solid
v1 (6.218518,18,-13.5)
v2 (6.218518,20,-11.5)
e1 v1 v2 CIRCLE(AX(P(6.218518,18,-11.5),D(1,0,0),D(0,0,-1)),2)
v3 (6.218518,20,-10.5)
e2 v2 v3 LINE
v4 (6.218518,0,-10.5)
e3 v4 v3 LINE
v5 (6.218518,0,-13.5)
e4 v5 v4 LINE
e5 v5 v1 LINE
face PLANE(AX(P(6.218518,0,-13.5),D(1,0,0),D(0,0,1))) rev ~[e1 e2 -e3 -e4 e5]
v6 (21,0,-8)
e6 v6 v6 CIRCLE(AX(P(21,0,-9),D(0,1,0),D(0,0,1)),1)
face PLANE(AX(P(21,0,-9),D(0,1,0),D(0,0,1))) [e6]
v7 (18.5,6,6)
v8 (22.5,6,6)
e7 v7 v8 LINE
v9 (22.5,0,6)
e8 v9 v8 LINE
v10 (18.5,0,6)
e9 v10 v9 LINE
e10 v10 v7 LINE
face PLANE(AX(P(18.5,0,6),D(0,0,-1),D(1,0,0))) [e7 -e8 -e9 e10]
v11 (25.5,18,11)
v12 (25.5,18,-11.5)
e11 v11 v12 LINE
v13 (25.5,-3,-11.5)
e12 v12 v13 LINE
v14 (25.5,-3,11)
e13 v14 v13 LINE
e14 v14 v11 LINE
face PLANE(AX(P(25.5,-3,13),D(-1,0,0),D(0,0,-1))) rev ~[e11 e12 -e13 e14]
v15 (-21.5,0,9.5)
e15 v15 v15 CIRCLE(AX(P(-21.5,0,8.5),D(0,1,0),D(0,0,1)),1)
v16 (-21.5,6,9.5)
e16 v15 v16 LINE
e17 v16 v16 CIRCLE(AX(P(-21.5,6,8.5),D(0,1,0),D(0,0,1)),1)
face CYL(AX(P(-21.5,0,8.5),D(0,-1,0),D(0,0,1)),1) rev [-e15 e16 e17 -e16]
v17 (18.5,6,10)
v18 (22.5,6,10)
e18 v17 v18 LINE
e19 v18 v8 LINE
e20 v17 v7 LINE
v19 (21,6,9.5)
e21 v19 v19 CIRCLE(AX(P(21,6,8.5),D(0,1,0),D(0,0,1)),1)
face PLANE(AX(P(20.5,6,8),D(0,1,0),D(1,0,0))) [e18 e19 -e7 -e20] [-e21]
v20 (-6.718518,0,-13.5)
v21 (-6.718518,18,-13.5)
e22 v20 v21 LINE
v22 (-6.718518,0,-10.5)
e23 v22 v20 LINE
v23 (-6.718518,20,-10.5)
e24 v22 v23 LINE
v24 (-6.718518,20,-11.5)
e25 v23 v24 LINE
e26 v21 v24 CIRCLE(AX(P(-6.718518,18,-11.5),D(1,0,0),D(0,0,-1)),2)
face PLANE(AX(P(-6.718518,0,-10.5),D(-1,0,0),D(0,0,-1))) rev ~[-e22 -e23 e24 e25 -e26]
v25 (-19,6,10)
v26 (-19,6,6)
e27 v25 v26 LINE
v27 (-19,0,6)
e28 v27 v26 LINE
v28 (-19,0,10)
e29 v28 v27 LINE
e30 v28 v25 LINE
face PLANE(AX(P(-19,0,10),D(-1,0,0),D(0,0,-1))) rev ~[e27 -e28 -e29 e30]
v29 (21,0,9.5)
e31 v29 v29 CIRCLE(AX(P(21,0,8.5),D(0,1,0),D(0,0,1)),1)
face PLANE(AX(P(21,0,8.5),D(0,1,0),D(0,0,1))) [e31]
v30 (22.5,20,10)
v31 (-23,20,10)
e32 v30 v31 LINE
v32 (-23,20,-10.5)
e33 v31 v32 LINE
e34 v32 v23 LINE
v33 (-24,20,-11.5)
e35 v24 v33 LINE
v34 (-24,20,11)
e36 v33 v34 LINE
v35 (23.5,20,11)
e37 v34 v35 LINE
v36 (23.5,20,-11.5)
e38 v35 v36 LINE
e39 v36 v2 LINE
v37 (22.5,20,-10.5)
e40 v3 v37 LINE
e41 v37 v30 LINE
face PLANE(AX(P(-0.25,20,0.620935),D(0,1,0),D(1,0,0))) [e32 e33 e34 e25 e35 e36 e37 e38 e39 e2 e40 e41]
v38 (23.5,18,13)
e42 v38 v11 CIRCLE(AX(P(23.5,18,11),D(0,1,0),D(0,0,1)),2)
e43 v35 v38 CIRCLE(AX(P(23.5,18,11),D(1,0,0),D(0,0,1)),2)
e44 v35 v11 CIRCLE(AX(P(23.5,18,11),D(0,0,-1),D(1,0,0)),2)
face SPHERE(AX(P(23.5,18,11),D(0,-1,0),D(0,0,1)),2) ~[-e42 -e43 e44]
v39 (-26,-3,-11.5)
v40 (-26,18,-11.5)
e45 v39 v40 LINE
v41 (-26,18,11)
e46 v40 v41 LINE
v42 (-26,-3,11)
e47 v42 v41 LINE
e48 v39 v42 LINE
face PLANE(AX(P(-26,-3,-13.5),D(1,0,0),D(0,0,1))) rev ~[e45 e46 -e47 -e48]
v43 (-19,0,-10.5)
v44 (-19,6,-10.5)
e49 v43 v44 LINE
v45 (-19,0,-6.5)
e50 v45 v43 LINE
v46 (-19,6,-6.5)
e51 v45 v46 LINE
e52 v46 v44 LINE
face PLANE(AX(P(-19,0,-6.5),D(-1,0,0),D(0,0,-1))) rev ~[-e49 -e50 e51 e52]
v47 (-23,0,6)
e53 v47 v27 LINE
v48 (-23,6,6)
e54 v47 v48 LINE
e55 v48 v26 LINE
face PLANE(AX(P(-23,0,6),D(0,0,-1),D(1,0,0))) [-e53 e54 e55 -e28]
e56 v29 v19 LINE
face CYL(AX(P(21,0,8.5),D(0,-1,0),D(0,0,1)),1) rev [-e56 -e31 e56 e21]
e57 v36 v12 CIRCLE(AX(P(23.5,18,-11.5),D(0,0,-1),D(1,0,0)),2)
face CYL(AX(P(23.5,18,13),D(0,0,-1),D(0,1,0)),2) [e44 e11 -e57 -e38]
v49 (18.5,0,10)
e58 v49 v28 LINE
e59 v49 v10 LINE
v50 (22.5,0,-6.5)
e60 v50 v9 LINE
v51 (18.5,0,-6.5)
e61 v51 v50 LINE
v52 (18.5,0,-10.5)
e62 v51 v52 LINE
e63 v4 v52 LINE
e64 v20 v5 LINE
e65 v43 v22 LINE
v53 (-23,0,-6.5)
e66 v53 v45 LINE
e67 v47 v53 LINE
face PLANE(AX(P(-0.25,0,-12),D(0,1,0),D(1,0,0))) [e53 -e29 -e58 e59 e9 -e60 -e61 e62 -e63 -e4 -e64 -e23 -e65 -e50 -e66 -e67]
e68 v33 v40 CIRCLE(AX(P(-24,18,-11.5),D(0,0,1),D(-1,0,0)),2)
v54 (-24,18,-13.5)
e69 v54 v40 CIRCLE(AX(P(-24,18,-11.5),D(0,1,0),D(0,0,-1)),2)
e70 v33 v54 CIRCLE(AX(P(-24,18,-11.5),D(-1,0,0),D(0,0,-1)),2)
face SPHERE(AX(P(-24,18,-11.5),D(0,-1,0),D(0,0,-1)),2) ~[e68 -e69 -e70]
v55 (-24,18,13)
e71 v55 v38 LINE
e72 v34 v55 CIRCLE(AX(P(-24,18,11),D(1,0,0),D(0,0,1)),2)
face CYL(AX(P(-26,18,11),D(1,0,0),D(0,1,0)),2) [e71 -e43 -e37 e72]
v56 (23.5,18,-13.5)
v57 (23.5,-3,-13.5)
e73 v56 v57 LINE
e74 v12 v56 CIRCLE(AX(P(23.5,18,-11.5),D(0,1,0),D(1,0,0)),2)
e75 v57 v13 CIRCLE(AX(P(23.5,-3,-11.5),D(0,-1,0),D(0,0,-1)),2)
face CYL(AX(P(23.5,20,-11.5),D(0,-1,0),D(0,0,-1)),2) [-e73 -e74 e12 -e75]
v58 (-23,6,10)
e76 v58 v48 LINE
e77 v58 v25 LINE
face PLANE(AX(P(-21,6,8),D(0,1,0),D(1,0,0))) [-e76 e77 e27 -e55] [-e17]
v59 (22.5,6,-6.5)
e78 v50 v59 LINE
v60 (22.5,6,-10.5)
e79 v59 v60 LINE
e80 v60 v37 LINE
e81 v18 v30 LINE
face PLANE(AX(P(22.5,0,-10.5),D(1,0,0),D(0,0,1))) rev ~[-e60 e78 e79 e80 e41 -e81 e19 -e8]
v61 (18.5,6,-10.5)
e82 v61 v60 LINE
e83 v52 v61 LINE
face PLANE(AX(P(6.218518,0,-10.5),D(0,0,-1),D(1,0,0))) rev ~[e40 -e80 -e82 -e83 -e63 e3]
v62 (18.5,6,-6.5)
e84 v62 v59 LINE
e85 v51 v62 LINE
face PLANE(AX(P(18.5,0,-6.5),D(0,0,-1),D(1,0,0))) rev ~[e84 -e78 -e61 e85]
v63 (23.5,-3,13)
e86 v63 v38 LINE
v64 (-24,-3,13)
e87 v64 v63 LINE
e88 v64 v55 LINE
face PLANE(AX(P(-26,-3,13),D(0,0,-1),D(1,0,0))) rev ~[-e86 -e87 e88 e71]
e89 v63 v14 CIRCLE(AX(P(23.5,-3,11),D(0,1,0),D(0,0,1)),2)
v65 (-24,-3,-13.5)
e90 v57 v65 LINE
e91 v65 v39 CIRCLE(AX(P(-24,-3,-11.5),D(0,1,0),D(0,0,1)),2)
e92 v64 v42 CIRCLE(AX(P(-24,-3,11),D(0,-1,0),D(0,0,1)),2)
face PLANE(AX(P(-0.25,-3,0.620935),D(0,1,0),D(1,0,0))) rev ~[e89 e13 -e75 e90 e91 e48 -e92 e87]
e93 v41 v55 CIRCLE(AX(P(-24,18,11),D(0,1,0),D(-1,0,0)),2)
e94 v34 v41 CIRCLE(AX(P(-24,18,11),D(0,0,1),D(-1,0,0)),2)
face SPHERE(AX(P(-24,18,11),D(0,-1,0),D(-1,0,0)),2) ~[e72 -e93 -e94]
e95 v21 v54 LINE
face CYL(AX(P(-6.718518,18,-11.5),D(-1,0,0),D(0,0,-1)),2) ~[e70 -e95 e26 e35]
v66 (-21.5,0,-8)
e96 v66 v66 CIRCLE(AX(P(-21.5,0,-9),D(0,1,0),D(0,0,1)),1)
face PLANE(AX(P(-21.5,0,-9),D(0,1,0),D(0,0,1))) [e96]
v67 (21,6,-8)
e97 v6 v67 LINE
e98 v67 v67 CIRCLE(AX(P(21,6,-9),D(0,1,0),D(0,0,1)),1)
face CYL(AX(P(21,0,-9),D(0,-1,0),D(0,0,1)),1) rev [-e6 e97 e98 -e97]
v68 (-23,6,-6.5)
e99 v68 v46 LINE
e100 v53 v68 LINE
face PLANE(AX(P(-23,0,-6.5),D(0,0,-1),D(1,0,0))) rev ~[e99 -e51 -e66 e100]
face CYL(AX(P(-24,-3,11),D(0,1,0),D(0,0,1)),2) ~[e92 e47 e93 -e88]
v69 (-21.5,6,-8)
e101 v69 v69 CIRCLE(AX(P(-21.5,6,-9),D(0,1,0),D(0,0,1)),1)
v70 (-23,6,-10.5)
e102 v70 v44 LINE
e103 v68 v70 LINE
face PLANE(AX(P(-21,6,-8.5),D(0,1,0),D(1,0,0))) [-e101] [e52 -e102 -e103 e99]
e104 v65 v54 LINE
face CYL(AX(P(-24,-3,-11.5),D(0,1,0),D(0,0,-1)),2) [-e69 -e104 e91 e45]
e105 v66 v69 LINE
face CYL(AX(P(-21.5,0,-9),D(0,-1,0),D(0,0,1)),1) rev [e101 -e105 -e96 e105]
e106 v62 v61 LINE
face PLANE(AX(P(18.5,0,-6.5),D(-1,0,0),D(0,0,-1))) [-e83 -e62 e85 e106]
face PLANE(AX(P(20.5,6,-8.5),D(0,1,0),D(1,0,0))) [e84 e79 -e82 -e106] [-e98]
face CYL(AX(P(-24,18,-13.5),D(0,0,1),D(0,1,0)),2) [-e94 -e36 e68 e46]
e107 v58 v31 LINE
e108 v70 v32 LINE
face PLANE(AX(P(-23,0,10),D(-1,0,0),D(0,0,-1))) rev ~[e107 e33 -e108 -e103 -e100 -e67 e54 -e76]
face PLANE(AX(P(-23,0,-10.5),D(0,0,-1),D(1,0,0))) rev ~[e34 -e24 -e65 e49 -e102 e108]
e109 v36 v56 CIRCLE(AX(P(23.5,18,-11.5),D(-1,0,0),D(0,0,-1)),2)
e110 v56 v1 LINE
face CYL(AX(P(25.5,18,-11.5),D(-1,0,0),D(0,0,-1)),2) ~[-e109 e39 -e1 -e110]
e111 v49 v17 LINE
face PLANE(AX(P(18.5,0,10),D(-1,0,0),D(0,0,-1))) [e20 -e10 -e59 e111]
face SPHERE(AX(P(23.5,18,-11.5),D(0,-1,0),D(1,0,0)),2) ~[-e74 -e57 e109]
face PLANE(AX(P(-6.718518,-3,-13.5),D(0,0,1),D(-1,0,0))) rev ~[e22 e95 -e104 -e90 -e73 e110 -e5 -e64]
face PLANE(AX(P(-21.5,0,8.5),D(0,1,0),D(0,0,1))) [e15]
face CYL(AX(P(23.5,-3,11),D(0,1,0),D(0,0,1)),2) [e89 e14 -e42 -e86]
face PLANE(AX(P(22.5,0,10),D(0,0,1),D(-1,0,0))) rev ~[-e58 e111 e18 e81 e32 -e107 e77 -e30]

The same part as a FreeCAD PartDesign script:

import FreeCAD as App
import Part
import Sketcher
from FreeCAD import Vector
Q = App.Units.Quantity


def edges_at(feature, points):
    """Names of the edges that pass closest to the given points."""
    edges = feature.Shape.Edges
    near = lambda p: min(range(len(edges)), key=lambda i: edges[i].distToShape(Part.Vertex(*p))[0])
    return sorted({f"Edge{near(p) + 1}" for p in points})

doc = App.newDocument("Part")
body = doc.addObject("PartDesign::Body", "Body")

# Sketch on XZ plane
sketch1 = body.newObject("Sketcher::SketchObject", "Sketch")
sketch1.AttachmentSupport = (doc.getObject("XZ_Plane"), [""])
sketch1.MapMode = "FlatFace"
sketch1.addGeometry(Part.LineSegment(Vector(-23, -10.5, 0), Vector(-6.7, -10.5, 0)), False)
sketch1.addGeometry(Part.LineSegment(Vector(-6.7, -10.5, 0), Vector(-6.7, -13.5, 0)), False)
sketch1.addGeometry(Part.LineSegment(Vector(-6.7, -13.5, 0), Vector(-26, -13.5, 0)), False)
sketch1.addGeometry(Part.LineSegment(Vector(-26, -13.5, 0), Vector(-26, 13, 0)), False)
sketch1.addGeometry(Part.LineSegment(Vector(-26, 13, 0), Vector(25.5, 13, 0)), False)
sketch1.addGeometry(Part.LineSegment(Vector(25.5, 13, 0), Vector(25.5, -13.5, 0)), False)
sketch1.addGeometry(Part.LineSegment(Vector(25.5, -13.5, 0), Vector(6.2, -13.5, 0)), False)
sketch1.addGeometry(Part.LineSegment(Vector(6.2, -13.5, 0), Vector(6.2, -10.5, 0)), False)
sketch1.addGeometry(Part.LineSegment(Vector(6.2, -10.5, 0), Vector(22.5, -10.5, 0)), False)
sketch1.addGeometry(Part.LineSegment(Vector(22.5, -10.5, 0), Vector(22.5, 10, 0)), False)
sketch1.addGeometry(Part.LineSegment(Vector(22.5, 10, 0), Vector(-23, 10, 0)), False)
sketch1.addGeometry(Part.LineSegment(Vector(-23, 10, 0), Vector(-23, -10.5, 0)), False)
sketch1.addConstraint(Sketcher.Constraint("Coincident", 0, 2, 1, 1))
sketch1.addConstraint(Sketcher.Constraint("Coincident", 1, 2, 2, 1))
sketch1.addConstraint(Sketcher.Constraint("Coincident", 2, 2, 3, 1))
sketch1.addConstraint(Sketcher.Constraint("Coincident", 3, 2, 4, 1))
sketch1.addConstraint(Sketcher.Constraint("Coincident", 4, 2, 5, 1))
sketch1.addConstraint(Sketcher.Constraint("Coincident", 5, 2, 6, 1))
sketch1.addConstraint(Sketcher.Constraint("Coincident", 6, 2, 7, 1))
sketch1.addConstraint(Sketcher.Constraint("Coincident", 7, 2, 8, 1))
sketch1.addConstraint(Sketcher.Constraint("Coincident", 8, 2, 9, 1))
sketch1.addConstraint(Sketcher.Constraint("Coincident", 9, 2, 10, 1))
sketch1.addConstraint(Sketcher.Constraint("Coincident", 10, 2, 11, 1))
sketch1.addConstraint(Sketcher.Constraint("Coincident", 11, 2, 0, 1))
sketch1.addConstraint(Sketcher.Constraint("Horizontal", 0))
sketch1.addConstraint(Sketcher.Constraint("Vertical", 1))
sketch1.addConstraint(Sketcher.Constraint("Horizontal", 2))
sketch1.addConstraint(Sketcher.Constraint("Vertical", 3))
sketch1.addConstraint(Sketcher.Constraint("Horizontal", 4))
sketch1.addConstraint(Sketcher.Constraint("Vertical", 5))
sketch1.addConstraint(Sketcher.Constraint("Horizontal", 6))
sketch1.addConstraint(Sketcher.Constraint("Vertical", 7))
sketch1.addConstraint(Sketcher.Constraint("Horizontal", 8))
sketch1.addConstraint(Sketcher.Constraint("Vertical", 9))
sketch1.addConstraint(Sketcher.Constraint("Horizontal", 10))
sketch1.addConstraint(Sketcher.Constraint("Vertical", 11))
sketch1.addConstraint(Sketcher.Constraint("Horizontal", 2, 2, 5, 2))
sketch1.addConstraint(Sketcher.Constraint("Horizontal", 0, 2, 7, 2))
sketch1.addConstraint(Sketcher.Constraint("Equal", 2, 6))
sketch1.addConstraint(Sketcher.Constraint("Equal", 0, 8))
sketch1.addConstraint(Sketcher.Constraint("DistanceY", 1, 2, 1, 1, Q("3 mm")))
sketch1.addConstraint(Sketcher.Constraint("DistanceX", 4, 1, 4, 2, Q("51.5 mm")))
sketch1.addConstraint(Sketcher.Constraint("DistanceX", 10, 2, 10, 1, Q("45.5 mm")))
sketch1.addConstraint(Sketcher.Constraint("DistanceY", 3, 1, 3, 2, Q("26.5 mm")))
sketch1.addConstraint(Sketcher.Constraint("DistanceY", 9, 1, 9, 2, Q("20.5 mm")))
sketch1.addConstraint(Sketcher.Constraint("DistanceX", 2, 2, -1, 1, Q("26 mm")))
sketch1.addConstraint(Sketcher.Constraint("DistanceY", -1, 1, 3, 2, Q("13 mm")))
sketch1.addConstraint(Sketcher.Constraint("DistanceX", 0, 1, 0, 2, Q("16.281482 mm")))
pad1 = body.newObject("PartDesign::Pad", "Pad")
pad1.Profile = sketch1
pad1.Length = 20
pad1.Reversed = True

# Sketch on XZ plane
sketch2 = body.newObject("Sketcher::SketchObject", "Sketch001")
sketch2.AttachmentSupport = (doc.getObject("XZ_Plane"), [""])
sketch2.MapMode = "FlatFace"
sketch2.addGeometry(Part.LineSegment(Vector(-23, -10.5, 0), Vector(-23, -6.5, 0)), False)
sketch2.addGeometry(Part.LineSegment(Vector(-23, -6.5, 0), Vector(-19, -6.5, 0)), False)
sketch2.addGeometry(Part.LineSegment(Vector(-19, -6.5, 0), Vector(-19, -10.5, 0)), False)
sketch2.addGeometry(Part.LineSegment(Vector(-19, -10.5, 0), Vector(-23, -10.5, 0)), False)
sketch2.addGeometry(Part.Circle(Vector(-21.5, -9, 0), Vector(0, 0, 1), 1), False)
sketch2.addGeometry(Part.LineSegment(Vector(18.5, -10.5, 0), Vector(18.5, -6.5, 0)), False)
sketch2.addGeometry(Part.LineSegment(Vector(18.5, -6.5, 0), Vector(22.5, -6.5, 0)), False)
sketch2.addGeometry(Part.LineSegment(Vector(22.5, -6.5, 0), Vector(22.5, -10.5, 0)), False)
sketch2.addGeometry(Part.LineSegment(Vector(22.5, -10.5, 0), Vector(18.5, -10.5, 0)), False)
sketch2.addGeometry(Part.Circle(Vector(21, -9, 0), Vector(0, 0, 1), 1), False)
sketch2.addGeometry(Part.LineSegment(Vector(18.5, 6, 0), Vector(18.5, 10, 0)), False)
sketch2.addGeometry(Part.LineSegment(Vector(18.5, 10, 0), Vector(22.5, 10, 0)), False)
sketch2.addGeometry(Part.LineSegment(Vector(22.5, 10, 0), Vector(22.5, 6, 0)), False)
sketch2.addGeometry(Part.LineSegment(Vector(22.5, 6, 0), Vector(18.5, 6, 0)), False)
sketch2.addGeometry(Part.Circle(Vector(21, 8.5, 0), Vector(0, 0, 1), 1), False)
sketch2.addGeometry(Part.LineSegment(Vector(-23, 6, 0), Vector(-23, 10, 0)), False)
sketch2.addGeometry(Part.LineSegment(Vector(-23, 10, 0), Vector(-19, 10, 0)), False)
sketch2.addGeometry(Part.LineSegment(Vector(-19, 10, 0), Vector(-19, 6, 0)), False)
sketch2.addGeometry(Part.LineSegment(Vector(-19, 6, 0), Vector(-23, 6, 0)), False)
sketch2.addGeometry(Part.Circle(Vector(-21.5, 8.5, 0), Vector(0, 0, 1), 1), False)
sketch2.addConstraint(Sketcher.Constraint("Coincident", 0, 2, 1, 1))
sketch2.addConstraint(Sketcher.Constraint("Coincident", 1, 2, 2, 1))
sketch2.addConstraint(Sketcher.Constraint("Coincident", 2, 2, 3, 1))
sketch2.addConstraint(Sketcher.Constraint("Coincident", 3, 2, 0, 1))
sketch2.addConstraint(Sketcher.Constraint("Coincident", 5, 2, 6, 1))
sketch2.addConstraint(Sketcher.Constraint("Coincident", 6, 2, 7, 1))
sketch2.addConstraint(Sketcher.Constraint("Coincident", 7, 2, 8, 1))
sketch2.addConstraint(Sketcher.Constraint("Coincident", 8, 2, 5, 1))
sketch2.addConstraint(Sketcher.Constraint("Coincident", 10, 2, 11, 1))
sketch2.addConstraint(Sketcher.Constraint("Coincident", 11, 2, 12, 1))
sketch2.addConstraint(Sketcher.Constraint("Coincident", 12, 2, 13, 1))
sketch2.addConstraint(Sketcher.Constraint("Coincident", 13, 2, 10, 1))
sketch2.addConstraint(Sketcher.Constraint("Coincident", 15, 2, 16, 1))
sketch2.addConstraint(Sketcher.Constraint("Coincident", 16, 2, 17, 1))
sketch2.addConstraint(Sketcher.Constraint("Coincident", 17, 2, 18, 1))
sketch2.addConstraint(Sketcher.Constraint("Coincident", 18, 2, 15, 1))
sketch2.addConstraint(Sketcher.Constraint("Vertical", 0))
sketch2.addConstraint(Sketcher.Constraint("Horizontal", 1))
sketch2.addConstraint(Sketcher.Constraint("Vertical", 2))
sketch2.addConstraint(Sketcher.Constraint("Horizontal", 3))
sketch2.addConstraint(Sketcher.Constraint("Vertical", 5))
sketch2.addConstraint(Sketcher.Constraint("Horizontal", 6))
sketch2.addConstraint(Sketcher.Constraint("Vertical", 7))
sketch2.addConstraint(Sketcher.Constraint("Horizontal", 8))
sketch2.addConstraint(Sketcher.Constraint("Vertical", 10))
sketch2.addConstraint(Sketcher.Constraint("Horizontal", 11))
sketch2.addConstraint(Sketcher.Constraint("Vertical", 12))
sketch2.addConstraint(Sketcher.Constraint("Horizontal", 13))
sketch2.addConstraint(Sketcher.Constraint("Vertical", 15))
sketch2.addConstraint(Sketcher.Constraint("Horizontal", 16))
sketch2.addConstraint(Sketcher.Constraint("Vertical", 17))
sketch2.addConstraint(Sketcher.Constraint("Horizontal", 18))
sketch2.addConstraint(Sketcher.Constraint("Equal", 4, 9))
sketch2.addConstraint(Sketcher.Constraint("Equal", 9, 14))
sketch2.addConstraint(Sketcher.Constraint("Equal", 14, 19))
sketch2.addConstraint(Sketcher.Constraint("Horizontal", 4, 3, 9, 3))
sketch2.addConstraint(Sketcher.Constraint("Horizontal", 14, 3, 19, 3))
sketch2.addConstraint(Sketcher.Constraint("Horizontal", 1, 2, 5, 2))
sketch2.addConstraint(Sketcher.Constraint("Horizontal", 3, 2, 7, 2))
sketch2.addConstraint(Sketcher.Constraint("Horizontal", 11, 2, 15, 2))
sketch2.addConstraint(Sketcher.Constraint("Horizontal", 13, 2, 17, 2))
sketch2.addConstraint(Sketcher.Constraint("Vertical", 9, 3, 14, 3))
sketch2.addConstraint(Sketcher.Constraint("Vertical", 4, 3, 19, 3))
sketch2.addConstraint(Sketcher.Constraint("Vertical", 8, 2, 10, 2))
sketch2.addConstraint(Sketcher.Constraint("Vertical", 7, 2, 11, 2))
sketch2.addConstraint(Sketcher.Constraint("Vertical", 3, 2, 15, 2))
sketch2.addConstraint(Sketcher.Constraint("Vertical", 2, 2, 16, 2))
sketch2.addConstraint(Sketcher.Constraint("Equal", 3, 6))
sketch2.addConstraint(Sketcher.Constraint("Equal", 18, 0))
sketch2.addConstraint(Sketcher.Constraint("Equal", 7, 10))
sketch2.addConstraint(Sketcher.Constraint("Diameter", 4, Q("2 mm")))
sketch2.addConstraint(Sketcher.Constraint("DistanceX", 1, 1, 1, 2, Q("4 mm")))
sketch2.addConstraint(Sketcher.Constraint("DistanceY", 4, 3, -1, 1, Q("9 mm")))
sketch2.addConstraint(Sketcher.Constraint("DistanceX", -1, 1, 9, 3, Q("21 mm")))
sketch2.addConstraint(Sketcher.Constraint("DistanceX", 0, 2, -1, 1, Q("23 mm")))
sketch2.addConstraint(Sketcher.Constraint("DistanceY", -1, 1, 10, 2, Q("10 mm")))
sketch2.addConstraint(Sketcher.Constraint("DistanceY", 0, 2, 19, 3, Q("15 mm")))
sketch2.addConstraint(Sketcher.Constraint("DistanceX", 4, 3, 5, 2, Q("40 mm")))
sketch2.addConstraint(Sketcher.Constraint("DistanceX", 4, 3, -1, 1, Q("21.5 mm")))
sketch2.addConstraint(Sketcher.Constraint("DistanceY", -1, 1, 14, 3, Q("8.5 mm")))
pad2 = body.newObject("PartDesign::Pad", "Pad001")
pad2.Profile = sketch2
pad2.Length = 6
pad2.Reversed = True

# Sketch on XZ plane
sketch3 = body.newObject("Sketcher::SketchObject", "Sketch002")
sketch3.AttachmentSupport = (doc.getObject("XZ_Plane"), [""])
sketch3.MapMode = "FlatFace"
sketch3.AttachmentOffset = App.Placement(Vector(0, 0, 3), App.Rotation())
sketch3.addGeometry(Part.LineSegment(Vector(-26, -14, 0), Vector(-26, 13, 0)), False)
sketch3.addGeometry(Part.LineSegment(Vector(-26, 13, 0), Vector(26, 13, 0)), False)
sketch3.addGeometry(Part.LineSegment(Vector(26, 13, 0), Vector(26, -14, 0)), False)
sketch3.addGeometry(Part.LineSegment(Vector(26, -14, 0), Vector(-26, -14, 0)), False)
sketch3.addConstraint(Sketcher.Constraint("Coincident", 0, 2, 1, 1))
sketch3.addConstraint(Sketcher.Constraint("Coincident", 1, 2, 2, 1))
sketch3.addConstraint(Sketcher.Constraint("Coincident", 2, 2, 3, 1))
sketch3.addConstraint(Sketcher.Constraint("Coincident", 3, 2, 0, 1))
sketch3.addConstraint(Sketcher.Constraint("Vertical", 0))
sketch3.addConstraint(Sketcher.Constraint("Horizontal", 1))
sketch3.addConstraint(Sketcher.Constraint("Vertical", 2))
sketch3.addConstraint(Sketcher.Constraint("Horizontal", 3))
sketch3.addConstraint(Sketcher.Constraint("DistanceX", 1, 1, 1, 2, Q("51.5 mm")))
sketch3.addConstraint(Sketcher.Constraint("DistanceY", 0, 1, 0, 2, Q("26.5 mm")))
sketch3.addConstraint(Sketcher.Constraint("DistanceX", 0, 2, -1, 1, Q("26 mm")))
sketch3.addConstraint(Sketcher.Constraint("DistanceY", -1, 1, 0, 2, Q("13 mm")))
pad3 = body.newObject("PartDesign::Pad", "Pad002")
pad3.Profile = sketch3
pad3.Length = 3
pad3.Reversed = True
doc.recompute()

fillet = body.newObject("PartDesign::Fillet", "Fillet")
fillet.Base = (pad3, edges_at(pad3, [
    (25.5, 8.5, 13),
    (-26, 8.5, 13),
    (-26, 8.5, -13.5),
    (25.5, 8.5, -13.5),
    (-16.359, 20, -13.5),
    (-26, 20, -0.25),
    (-0.25, 20, 13),
    (25.5, 20, -0.25),
    (15.859, 20, -13.5),
]))
fillet.Radius = 2

doc.recompute()
